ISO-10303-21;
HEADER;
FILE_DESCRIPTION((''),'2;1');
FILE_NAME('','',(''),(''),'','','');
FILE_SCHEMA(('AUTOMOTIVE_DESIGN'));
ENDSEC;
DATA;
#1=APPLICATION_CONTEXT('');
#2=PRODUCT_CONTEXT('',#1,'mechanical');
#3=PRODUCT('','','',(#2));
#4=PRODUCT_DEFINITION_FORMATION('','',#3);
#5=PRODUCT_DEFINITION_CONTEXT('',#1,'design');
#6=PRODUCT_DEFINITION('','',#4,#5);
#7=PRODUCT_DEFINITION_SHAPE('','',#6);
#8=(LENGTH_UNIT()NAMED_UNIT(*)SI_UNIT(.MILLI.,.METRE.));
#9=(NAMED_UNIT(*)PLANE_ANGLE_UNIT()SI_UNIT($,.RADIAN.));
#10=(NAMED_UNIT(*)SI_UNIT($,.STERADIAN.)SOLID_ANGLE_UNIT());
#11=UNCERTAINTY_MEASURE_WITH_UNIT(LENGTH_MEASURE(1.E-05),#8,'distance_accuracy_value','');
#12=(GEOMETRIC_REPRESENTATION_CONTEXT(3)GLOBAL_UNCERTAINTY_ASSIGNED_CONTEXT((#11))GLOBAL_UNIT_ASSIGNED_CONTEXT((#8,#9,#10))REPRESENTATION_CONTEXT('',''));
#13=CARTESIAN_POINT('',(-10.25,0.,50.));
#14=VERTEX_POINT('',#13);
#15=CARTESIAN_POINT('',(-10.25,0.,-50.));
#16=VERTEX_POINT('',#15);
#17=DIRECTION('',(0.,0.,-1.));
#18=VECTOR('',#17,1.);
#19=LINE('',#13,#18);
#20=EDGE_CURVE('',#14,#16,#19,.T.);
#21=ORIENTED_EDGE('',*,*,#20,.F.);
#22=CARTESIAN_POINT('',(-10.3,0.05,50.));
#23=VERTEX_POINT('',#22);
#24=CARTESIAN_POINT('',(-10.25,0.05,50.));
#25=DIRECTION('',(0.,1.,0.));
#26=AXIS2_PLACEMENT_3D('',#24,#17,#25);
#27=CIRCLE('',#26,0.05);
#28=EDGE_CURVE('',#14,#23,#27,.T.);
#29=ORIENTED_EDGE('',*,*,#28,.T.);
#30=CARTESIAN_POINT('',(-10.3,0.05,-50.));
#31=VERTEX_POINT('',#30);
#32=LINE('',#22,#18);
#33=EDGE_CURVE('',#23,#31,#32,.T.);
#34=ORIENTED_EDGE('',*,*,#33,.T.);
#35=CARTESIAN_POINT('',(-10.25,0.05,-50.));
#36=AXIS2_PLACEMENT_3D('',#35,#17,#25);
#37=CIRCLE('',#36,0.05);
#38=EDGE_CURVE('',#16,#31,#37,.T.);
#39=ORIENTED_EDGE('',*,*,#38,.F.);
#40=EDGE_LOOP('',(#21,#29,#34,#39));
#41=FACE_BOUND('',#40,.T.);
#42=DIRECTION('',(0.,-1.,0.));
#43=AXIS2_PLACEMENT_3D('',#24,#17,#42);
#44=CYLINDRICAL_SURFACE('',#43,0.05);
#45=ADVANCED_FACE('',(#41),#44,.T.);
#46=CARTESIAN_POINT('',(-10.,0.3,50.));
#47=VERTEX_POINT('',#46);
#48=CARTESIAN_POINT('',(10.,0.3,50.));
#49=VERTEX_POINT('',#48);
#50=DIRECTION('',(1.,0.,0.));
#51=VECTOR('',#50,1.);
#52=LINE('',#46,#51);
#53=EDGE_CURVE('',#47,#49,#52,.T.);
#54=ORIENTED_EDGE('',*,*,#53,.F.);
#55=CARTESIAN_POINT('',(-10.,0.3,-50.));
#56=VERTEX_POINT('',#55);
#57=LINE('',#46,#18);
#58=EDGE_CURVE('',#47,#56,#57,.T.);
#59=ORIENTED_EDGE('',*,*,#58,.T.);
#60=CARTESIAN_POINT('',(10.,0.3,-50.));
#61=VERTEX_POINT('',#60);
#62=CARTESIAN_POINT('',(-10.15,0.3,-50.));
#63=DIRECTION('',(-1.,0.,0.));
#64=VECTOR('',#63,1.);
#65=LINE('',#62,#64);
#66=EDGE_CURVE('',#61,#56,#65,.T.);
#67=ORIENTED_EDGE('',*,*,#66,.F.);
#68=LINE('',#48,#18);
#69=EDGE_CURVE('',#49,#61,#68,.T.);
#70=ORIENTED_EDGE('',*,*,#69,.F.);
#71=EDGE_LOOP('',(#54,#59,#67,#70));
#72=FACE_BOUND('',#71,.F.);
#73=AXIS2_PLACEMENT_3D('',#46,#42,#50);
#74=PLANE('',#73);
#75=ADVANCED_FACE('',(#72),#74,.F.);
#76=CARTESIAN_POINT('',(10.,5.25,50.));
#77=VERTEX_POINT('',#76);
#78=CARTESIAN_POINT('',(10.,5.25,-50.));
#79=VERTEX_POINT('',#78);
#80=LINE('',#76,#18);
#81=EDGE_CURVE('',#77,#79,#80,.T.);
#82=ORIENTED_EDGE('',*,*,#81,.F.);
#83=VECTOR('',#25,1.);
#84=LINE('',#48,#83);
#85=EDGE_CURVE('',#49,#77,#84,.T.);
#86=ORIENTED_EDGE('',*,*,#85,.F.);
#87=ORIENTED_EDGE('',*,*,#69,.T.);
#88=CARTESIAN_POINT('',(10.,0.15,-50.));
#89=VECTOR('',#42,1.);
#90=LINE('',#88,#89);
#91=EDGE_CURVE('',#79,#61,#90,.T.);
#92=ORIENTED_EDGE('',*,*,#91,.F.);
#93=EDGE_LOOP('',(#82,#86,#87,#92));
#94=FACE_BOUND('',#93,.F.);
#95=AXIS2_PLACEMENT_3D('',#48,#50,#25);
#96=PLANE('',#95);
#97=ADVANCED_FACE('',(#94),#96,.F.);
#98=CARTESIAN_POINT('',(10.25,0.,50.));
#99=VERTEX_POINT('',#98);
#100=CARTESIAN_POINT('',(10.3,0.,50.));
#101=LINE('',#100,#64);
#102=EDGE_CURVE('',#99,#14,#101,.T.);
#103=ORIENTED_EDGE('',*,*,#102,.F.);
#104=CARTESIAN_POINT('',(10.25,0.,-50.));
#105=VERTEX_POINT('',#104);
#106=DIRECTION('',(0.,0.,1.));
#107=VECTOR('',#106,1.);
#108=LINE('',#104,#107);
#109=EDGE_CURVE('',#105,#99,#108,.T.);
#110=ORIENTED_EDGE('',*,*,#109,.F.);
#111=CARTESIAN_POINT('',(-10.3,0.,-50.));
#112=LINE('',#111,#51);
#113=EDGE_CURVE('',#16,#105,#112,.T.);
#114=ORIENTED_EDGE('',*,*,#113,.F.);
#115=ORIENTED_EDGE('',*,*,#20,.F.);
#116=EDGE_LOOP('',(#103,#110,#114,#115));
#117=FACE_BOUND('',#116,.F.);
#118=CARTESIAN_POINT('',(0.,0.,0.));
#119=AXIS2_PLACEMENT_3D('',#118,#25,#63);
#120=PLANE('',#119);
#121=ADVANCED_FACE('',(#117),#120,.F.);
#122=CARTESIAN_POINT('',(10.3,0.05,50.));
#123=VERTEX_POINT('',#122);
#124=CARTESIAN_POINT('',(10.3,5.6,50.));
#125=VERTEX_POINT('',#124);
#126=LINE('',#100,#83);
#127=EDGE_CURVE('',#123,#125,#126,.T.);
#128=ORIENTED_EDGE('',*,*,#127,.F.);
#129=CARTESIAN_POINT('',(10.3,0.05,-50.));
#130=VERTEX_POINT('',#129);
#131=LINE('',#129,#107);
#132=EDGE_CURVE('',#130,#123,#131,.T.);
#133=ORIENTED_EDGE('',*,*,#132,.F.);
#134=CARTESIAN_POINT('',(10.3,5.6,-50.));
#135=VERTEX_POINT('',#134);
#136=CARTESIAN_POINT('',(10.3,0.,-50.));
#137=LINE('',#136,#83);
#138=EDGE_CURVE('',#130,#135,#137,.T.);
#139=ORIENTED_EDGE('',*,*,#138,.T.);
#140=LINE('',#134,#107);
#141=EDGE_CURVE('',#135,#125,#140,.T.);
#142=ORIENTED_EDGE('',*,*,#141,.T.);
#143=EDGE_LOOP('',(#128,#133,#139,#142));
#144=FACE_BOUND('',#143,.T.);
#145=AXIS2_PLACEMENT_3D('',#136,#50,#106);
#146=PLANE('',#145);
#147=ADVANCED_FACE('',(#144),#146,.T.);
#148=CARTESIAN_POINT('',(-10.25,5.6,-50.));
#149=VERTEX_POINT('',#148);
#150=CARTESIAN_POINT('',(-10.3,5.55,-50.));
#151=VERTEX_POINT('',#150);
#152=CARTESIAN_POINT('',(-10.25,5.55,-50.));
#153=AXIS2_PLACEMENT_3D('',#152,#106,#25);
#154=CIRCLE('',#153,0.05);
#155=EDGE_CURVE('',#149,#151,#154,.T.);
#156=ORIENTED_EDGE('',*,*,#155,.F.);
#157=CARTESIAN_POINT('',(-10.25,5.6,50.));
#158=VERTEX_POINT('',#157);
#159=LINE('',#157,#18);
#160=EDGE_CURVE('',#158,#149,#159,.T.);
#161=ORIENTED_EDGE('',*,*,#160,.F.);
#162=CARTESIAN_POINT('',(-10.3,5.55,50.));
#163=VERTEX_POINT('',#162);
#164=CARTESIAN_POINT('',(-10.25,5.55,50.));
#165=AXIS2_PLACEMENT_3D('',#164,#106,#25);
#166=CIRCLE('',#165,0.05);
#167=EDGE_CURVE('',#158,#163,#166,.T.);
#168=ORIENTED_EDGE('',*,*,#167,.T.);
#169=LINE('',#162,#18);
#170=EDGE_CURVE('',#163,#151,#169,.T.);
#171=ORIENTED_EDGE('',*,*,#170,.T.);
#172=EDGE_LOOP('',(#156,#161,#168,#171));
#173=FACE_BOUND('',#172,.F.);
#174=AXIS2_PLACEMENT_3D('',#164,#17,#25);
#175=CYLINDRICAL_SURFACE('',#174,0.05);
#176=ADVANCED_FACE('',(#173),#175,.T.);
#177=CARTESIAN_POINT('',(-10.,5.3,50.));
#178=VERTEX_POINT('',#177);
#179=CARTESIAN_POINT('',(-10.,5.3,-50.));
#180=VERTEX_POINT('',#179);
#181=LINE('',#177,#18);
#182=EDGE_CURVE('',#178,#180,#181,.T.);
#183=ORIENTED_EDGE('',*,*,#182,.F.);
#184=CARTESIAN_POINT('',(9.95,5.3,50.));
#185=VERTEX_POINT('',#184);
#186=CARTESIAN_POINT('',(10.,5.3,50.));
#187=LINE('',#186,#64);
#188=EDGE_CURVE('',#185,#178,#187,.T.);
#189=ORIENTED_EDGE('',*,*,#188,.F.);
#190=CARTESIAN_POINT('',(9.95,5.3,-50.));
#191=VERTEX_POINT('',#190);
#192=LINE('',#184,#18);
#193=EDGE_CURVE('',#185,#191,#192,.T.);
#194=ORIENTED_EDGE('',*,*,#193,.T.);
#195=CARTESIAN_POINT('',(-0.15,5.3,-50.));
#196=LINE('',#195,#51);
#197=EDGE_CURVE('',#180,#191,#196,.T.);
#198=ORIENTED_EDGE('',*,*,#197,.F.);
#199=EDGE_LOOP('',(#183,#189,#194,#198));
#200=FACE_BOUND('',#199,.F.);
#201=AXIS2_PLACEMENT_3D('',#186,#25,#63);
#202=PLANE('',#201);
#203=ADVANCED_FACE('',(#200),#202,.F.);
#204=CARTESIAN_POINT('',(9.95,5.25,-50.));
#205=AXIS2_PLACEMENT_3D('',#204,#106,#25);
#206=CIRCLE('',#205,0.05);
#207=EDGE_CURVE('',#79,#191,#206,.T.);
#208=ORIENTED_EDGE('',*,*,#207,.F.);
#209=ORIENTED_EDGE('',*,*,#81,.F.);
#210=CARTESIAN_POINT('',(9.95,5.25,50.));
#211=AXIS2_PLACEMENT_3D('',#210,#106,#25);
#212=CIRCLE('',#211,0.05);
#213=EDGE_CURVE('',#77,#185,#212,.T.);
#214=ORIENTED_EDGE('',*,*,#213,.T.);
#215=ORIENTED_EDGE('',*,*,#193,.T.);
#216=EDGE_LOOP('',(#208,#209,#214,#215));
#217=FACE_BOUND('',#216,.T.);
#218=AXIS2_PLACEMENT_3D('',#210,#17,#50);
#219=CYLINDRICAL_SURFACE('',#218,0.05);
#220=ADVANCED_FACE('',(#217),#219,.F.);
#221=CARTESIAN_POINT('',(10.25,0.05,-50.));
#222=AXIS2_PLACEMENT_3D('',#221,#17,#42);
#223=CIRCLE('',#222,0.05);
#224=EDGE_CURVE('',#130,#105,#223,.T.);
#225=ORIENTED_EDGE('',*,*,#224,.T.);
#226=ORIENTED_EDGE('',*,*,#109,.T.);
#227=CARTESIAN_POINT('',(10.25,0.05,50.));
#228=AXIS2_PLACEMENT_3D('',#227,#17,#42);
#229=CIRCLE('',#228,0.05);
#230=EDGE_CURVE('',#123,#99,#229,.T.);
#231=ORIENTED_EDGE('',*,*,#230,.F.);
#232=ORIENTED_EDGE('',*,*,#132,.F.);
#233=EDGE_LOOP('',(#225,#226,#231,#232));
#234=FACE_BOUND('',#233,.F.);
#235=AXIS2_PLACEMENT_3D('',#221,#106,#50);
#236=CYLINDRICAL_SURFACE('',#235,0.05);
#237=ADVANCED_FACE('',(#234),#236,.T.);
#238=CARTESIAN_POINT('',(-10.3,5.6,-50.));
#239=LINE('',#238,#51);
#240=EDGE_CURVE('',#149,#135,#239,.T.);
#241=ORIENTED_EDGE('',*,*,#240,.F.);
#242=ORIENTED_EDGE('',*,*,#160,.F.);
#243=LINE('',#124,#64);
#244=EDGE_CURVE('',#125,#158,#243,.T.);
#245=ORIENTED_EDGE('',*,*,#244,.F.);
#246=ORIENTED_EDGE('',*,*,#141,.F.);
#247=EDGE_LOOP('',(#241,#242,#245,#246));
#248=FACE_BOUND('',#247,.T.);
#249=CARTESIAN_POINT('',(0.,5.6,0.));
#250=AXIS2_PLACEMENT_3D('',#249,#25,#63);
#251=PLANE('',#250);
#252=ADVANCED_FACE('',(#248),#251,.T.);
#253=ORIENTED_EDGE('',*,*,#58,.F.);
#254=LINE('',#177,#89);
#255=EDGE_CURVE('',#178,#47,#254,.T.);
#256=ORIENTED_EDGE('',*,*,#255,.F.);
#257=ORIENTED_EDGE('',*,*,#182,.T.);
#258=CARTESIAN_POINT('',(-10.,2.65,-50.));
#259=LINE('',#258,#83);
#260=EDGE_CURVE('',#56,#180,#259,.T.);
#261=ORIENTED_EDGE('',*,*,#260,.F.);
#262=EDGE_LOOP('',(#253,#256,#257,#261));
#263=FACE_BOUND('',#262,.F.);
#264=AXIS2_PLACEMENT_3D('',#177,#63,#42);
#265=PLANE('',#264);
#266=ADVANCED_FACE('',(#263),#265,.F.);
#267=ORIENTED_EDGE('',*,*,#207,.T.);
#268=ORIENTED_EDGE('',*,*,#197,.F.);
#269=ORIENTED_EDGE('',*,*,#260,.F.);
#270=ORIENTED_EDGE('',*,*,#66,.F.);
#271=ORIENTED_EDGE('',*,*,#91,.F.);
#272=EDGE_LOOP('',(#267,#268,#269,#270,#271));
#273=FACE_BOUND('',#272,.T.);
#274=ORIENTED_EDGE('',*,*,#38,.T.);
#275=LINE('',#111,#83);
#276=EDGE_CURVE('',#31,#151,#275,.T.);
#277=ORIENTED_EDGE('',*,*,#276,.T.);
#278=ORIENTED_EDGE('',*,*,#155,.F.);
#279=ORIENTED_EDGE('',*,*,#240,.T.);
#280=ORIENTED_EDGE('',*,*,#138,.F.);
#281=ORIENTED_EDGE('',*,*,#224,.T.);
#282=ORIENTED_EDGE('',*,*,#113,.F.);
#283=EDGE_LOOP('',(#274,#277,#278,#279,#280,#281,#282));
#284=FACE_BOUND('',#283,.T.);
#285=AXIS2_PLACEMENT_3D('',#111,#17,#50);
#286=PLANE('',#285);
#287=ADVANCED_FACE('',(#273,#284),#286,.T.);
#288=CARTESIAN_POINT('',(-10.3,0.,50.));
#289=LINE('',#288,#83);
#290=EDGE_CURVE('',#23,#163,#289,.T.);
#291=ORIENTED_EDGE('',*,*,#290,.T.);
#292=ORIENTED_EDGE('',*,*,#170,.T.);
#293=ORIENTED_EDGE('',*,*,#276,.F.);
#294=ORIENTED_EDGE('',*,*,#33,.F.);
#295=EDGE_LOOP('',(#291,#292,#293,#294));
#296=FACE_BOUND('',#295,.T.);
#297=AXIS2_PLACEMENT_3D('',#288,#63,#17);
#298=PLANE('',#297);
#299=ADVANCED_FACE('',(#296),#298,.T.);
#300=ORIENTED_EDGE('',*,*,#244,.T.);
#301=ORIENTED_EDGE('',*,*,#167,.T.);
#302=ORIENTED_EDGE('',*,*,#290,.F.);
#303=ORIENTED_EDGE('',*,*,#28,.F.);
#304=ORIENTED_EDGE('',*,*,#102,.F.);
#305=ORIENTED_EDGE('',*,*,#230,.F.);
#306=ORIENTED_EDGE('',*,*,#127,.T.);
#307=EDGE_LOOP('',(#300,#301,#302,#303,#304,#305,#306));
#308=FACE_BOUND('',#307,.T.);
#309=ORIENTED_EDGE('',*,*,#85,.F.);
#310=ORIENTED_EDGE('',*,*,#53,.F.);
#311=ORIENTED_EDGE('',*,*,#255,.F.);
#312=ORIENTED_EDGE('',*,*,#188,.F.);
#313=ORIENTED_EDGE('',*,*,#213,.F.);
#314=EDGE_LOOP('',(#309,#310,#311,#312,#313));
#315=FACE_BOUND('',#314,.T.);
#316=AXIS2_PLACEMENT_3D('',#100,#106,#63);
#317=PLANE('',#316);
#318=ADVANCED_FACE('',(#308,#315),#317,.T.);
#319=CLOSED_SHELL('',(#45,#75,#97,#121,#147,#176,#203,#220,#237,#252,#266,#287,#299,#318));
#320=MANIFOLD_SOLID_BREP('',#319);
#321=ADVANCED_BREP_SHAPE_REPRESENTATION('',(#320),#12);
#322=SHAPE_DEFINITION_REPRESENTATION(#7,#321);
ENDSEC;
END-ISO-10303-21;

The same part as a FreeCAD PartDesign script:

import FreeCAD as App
import Part
import Sketcher

V = App.Vector
Q = App.Units.Quantity


def edges_at(feature, points):
    """Names of the edges that pass closest to the given points."""
    edges = feature.Shape.Edges
    near = lambda p: min(range(len(edges)), key=lambda i: edges[i].distToShape(Part.Vertex(*p))[0])
    return sorted({f"Edge{near(p) + 1}" for p in points})


def add_polygon(sketch, points):
    """Adds a closed chain of lines whose ends are joined by coincident constraints."""
    first, n = sketch.GeometryCount, len(points)
    for a, b in zip(points, points[1:] + points[:1]):
        sketch.addGeometry(Part.LineSegment(App.Vector(*a, 0), App.Vector(*b, 0)), False)
    for i in range(n):
        sketch.addConstraint(Sketcher.Constraint("Coincident", first + i, 2, first + (i + 1) % n, 1))

doc = App.newDocument("Part")
body = doc.addObject("PartDesign::Body", "Body")

sketch1 = body.newObject("Sketcher::SketchObject", "Sketch")
sketch1.AttachmentSupport = (doc.getObject("XZ_Plane"), [""])
sketch1.MapMode = "FlatFace"
add_polygon(sketch1, [(-10, 50), (10, 50), (10, -50), (-10, -50)])
sketch1.addConstraint(Sketcher.Constraint("Horizontal", 0))
sketch1.addConstraint(Sketcher.Constraint("Vertical", 1))
sketch1.addConstraint(Sketcher.Constraint("Horizontal", 2))
sketch1.addConstraint(Sketcher.Constraint("Vertical", 3))
sketch1.addConstraint(Sketcher.Constraint("Symmetric", 0, 2, 2, 2, -1, 1))
sketch1.addConstraint(Sketcher.Constraint("DistanceY", 1, 2, 1, 1, Q("100 mm")))
sketch1.addConstraint(Sketcher.Constraint("DistanceX", 0, 1, 0, 2, Q("20.6 mm")))
pad1 = body.newObject("PartDesign::Pad", "Pad")
pad1.Profile = sketch1
pad1.Length = 5.6
pad1.Reversed = True

sketch2 = body.newObject("Sketcher::SketchObject", "Sketch001")
sketch2.AttachmentSupport = (doc.getObject("XY_Plane"), [""])
sketch2.MapMode = "FlatFace"
sketch2.AttachmentOffset = App.Placement(V(0, 0, 50), App.Rotation())
add_polygon(sketch2, [(-10, 5), (-10, 0), (10, 0), (10, 5)])
sketch2.addConstraint(Sketcher.Constraint("Vertical", 0))
sketch2.addConstraint(Sketcher.Constraint("Horizontal", 1))
sketch2.addConstraint(Sketcher.Constraint("Vertical", 2))
sketch2.addConstraint(Sketcher.Constraint("Horizontal", 3))
sketch2.addConstraint(Sketcher.Constraint("DistanceY", -1, 1, 0, 2, Q("0.3 mm")))
sketch2.addConstraint(Sketcher.Constraint("DistanceX", 1, 1, 1, 2, Q("20 mm")))
sketch2.addConstraint(Sketcher.Constraint("DistanceY", 0, 2, 0, 1, Q("5 mm")))
sketch2.addConstraint(Sketcher.Constraint("DistanceX", 0, 2, -1, 1, Q("10 mm")))
pocket1 = body.newObject("PartDesign::Pocket", "Pocket")
pocket1.Profile = sketch2
pocket1.Type = "ThroughAll"
doc.recompute()

fillet = body.newObject("PartDesign::Fillet", "Fillet")
fillet.Base = (pocket1, edges_at(pocket1, [
    (-10.3, 5.6, 0),
    (-10.3, 0, 0),
    (10, 5.3, 0),
    (10.3, 0, 0),
]))
fillet.Radius = 0.05

doc.recompute()
